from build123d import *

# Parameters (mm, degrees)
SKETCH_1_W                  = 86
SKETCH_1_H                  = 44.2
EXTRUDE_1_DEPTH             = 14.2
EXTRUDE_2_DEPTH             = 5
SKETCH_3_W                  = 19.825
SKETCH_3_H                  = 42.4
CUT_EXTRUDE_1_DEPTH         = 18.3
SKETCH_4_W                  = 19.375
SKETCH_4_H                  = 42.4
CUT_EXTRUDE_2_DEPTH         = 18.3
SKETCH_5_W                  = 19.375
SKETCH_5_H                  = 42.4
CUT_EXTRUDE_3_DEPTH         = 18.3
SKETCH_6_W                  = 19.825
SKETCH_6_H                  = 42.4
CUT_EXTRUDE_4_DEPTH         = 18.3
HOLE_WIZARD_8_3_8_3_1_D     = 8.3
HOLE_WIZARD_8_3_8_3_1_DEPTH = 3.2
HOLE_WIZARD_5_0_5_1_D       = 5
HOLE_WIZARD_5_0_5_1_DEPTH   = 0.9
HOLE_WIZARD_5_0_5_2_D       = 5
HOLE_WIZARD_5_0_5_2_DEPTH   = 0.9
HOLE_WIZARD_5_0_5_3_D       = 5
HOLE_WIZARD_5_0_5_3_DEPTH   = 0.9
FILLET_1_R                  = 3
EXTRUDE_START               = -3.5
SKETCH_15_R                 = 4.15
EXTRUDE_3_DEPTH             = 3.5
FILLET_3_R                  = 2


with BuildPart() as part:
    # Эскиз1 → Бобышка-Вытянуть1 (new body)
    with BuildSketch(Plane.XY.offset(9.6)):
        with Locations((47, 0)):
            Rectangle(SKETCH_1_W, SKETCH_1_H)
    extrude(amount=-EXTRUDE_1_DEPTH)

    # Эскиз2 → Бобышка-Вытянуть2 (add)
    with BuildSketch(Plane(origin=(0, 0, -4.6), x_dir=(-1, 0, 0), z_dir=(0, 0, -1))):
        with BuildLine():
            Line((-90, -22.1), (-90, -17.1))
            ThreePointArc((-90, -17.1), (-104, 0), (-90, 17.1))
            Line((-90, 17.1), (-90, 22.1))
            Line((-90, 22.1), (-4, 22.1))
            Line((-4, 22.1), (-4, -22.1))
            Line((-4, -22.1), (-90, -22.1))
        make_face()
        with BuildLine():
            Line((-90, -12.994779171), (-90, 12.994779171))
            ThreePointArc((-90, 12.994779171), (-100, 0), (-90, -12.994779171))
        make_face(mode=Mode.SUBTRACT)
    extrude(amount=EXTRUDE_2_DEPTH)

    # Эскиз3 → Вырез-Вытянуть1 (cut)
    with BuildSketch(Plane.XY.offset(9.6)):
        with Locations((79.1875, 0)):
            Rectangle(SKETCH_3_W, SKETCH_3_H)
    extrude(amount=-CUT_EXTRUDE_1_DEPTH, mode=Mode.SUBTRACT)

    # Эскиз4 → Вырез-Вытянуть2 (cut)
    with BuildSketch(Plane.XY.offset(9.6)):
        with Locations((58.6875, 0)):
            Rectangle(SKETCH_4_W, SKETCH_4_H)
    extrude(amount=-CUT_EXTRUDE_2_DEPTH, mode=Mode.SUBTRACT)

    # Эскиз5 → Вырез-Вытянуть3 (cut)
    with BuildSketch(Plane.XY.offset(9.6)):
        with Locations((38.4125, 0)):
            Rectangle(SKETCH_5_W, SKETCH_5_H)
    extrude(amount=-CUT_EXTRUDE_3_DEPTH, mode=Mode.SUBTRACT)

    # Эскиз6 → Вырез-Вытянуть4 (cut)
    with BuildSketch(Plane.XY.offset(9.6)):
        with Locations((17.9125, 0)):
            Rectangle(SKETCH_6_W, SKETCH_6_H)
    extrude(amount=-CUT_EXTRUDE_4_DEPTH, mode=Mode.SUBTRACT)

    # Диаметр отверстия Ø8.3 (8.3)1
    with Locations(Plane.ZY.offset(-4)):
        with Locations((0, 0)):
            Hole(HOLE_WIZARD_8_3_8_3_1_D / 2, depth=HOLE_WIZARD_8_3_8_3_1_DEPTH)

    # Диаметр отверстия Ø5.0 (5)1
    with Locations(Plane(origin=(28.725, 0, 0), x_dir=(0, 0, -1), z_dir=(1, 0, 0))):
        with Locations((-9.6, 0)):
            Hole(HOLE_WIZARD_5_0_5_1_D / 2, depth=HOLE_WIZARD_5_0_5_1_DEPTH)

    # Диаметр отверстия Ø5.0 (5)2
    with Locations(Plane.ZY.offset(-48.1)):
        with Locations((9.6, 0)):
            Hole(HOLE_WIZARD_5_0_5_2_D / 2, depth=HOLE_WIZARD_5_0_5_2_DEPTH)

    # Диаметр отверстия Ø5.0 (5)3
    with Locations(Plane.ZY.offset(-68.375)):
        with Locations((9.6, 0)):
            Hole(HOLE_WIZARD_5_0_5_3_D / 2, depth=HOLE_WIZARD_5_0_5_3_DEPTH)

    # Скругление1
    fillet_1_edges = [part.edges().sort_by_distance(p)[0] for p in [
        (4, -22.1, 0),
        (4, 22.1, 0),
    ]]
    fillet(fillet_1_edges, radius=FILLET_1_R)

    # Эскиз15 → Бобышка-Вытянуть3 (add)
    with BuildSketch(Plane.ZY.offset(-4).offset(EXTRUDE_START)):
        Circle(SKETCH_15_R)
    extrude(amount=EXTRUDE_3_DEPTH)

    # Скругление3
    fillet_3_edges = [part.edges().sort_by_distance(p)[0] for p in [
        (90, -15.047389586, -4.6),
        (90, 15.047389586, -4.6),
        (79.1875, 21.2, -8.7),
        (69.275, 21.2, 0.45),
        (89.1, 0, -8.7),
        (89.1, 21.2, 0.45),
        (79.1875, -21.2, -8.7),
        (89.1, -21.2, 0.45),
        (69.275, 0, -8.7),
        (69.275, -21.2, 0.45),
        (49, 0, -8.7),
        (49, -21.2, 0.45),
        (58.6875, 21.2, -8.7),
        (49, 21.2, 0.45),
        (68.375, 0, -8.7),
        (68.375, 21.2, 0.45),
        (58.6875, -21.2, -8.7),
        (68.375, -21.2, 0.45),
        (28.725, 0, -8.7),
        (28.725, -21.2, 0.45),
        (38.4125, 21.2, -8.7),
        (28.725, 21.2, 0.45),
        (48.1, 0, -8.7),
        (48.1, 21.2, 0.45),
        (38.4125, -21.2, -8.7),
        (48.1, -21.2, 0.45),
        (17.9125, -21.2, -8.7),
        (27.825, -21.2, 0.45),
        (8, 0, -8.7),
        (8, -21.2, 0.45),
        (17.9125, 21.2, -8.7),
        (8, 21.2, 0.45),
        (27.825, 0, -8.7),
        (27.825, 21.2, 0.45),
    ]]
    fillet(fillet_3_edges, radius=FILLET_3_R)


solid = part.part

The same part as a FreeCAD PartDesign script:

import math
import FreeCAD as App
import Part
import Sketcher

V = App.Vector
Q = App.Units.Quantity


def edges_at(feature, points):
    """Names of the edges that pass closest to the given points."""
    edges = feature.Shape.Edges
    near = lambda p: min(range(len(edges)), key=lambda i: edges[i].distToShape(Part.Vertex(*p))[0])
    return sorted({f"Edge{near(p) + 1}" for p in points})


def add_polygon(sketch, points):
    """Adds a closed chain of lines whose ends are joined by coincident constraints."""
    first, n = sketch.GeometryCount, len(points)
    for a, b in zip(points, points[1:] + points[:1]):
        sketch.addGeometry(Part.LineSegment(App.Vector(*a, 0), App.Vector(*b, 0)), False)
    for i in range(n):
        sketch.addConstraint(Sketcher.Constraint("Coincident", first + i, 2, first + (i + 1) % n, 1))

doc = App.newDocument("Part")
params = doc.addObject("Spreadsheet::Sheet", "Params")
for row, (alias, value) in enumerate([
    ("sketch1_width", "86 mm"),
    ("sketch1_height", "44.2 mm"),
    ("pad1_length", "14.2 mm"),
    ("sketch2_width", "86 mm"),
    ("sketch2_height", "5 mm"),
    ("sketch2_height2", "44.2 mm"),
    ("pad2_length", "5 mm"),
    ("sketch3_height", "42.4 mm"),
    ("pocket1_length", "18.3 mm"),
    ("sketch4_height", "42.4 mm"),
    ("pocket2_length", "18.3 mm"),
    ("sketch5_height", "42.4 mm"),
    ("pocket3_length", "18.3 mm"),
    ("sketch6_height", "42.4 mm"),
    ("pocket4_length", "18.3 mm"),
    ("sketch7_diameter", "8.3 mm"),
    ("hole_diameter", "8.3 mm"),
    ("hole_depth", "3.2 mm"),
    ("sketch8_diameter", "5 mm"),
    ("hole2_diameter", "5 mm"),
    ("hole2_depth", "0.9 mm"),
    ("sketch9_diameter", "5 mm"),
    ("hole3_diameter", "5 mm"),
    ("hole3_depth", "0.9 mm"),
    ("sketch10_diameter", "5 mm"),
    ("hole4_diameter", "5 mm"),
    ("hole4_depth", "0.9 mm"),
    ("fillet_radius", "3 mm"),
    ("sketch11_diameter", "8.3 mm"),
    ("pad3_length", "3.5 mm"),
    ("fillet2_radius", "2 mm"),
], start=1):
    params.set(f"A{row}", alias)
    params.set(f"B{row}", "=" + value)
    params.setAlias(f"B{row}", alias)

body = doc.addObject("PartDesign::Body", "Body")

# Sketch on XY plane
sketch1 = body.newObject("Sketcher::SketchObject", "Sketch")
sketch1.AttachmentSupport = (doc.getObject("XY_Plane"), [""])
sketch1.MapMode = "FlatFace"
sketch1.AttachmentOffset = App.Placement(V(0, 0, 9.6), App.Rotation())
add_polygon(sketch1, [(4, 22), (4, -22), (90, -22), (90, 22)])  # lines 0-3
sketch1.addConstraint([
    Sketcher.Constraint("Vertical", 0),
    Sketcher.Constraint("Horizontal", 1),
    Sketcher.Constraint("Vertical", 2),
    Sketcher.Constraint("Horizontal", 3),
    Sketcher.Constraint("DistanceX", 1, 1, 1, 2, Q("86 mm")),
    Sketcher.Constraint("DistanceY", 0, 2, 0, 1, Q("44.2 mm")),
    Sketcher.Constraint("DistanceX", -1, 1, 0, 2, Q("4 mm")),
    Sketcher.Constraint("DistanceY", 0, 2, -1, 1, Q("22.1 mm")),
])
sketch1.setExpression("Constraints[8]", "Params.sketch1_width")
sketch1.setExpression("Constraints[9]", "Params.sketch1_height")
pad1 = body.newObject("PartDesign::Pad", "Pad")
pad1.Profile = sketch1
pad1.setExpression("Length", "Params.pad1_length")
pad1.Reversed = True

# Sketch on XY plane
sketch2 = body.newObject("Sketcher::SketchObject", "Sketch001")
sketch2.AttachmentSupport = (doc.getObject("XY_Plane"), [""])
sketch2.MapMode = "FlatFace"
sketch2.AttachmentOffset = App.Placement(V(0, 0, -4.6), App.Rotation())
sketch2.addGeometry([
    Part.LineSegment(V(90, -17, 0), V(90, -22, 0)),  # 0
    Part.LineSegment(V(90, -22, 0), V(4, -22, 0)),  # 1
    Part.LineSegment(V(4, -22, 0), V(4, 22, 0)),  # 2
    Part.LineSegment(V(4, 22, 0), V(90, 22, 0)),  # 3
    Part.LineSegment(V(90, 22, 0), V(90, 17, 0)),  # 4
    Part.ArcOfCircle(Part.Circle(V(87, 0, 0), V(0, 0, 1), 17), math.radians(-79), math.radians(79)),  # 5
    Part.ArcOfCircle(Part.Circle(V(87, 0, 0), V(0, 0, 1), 13), math.radians(-75), math.radians(75)),  # 6
    Part.LineSegment(V(90, 13, 0), V(90, -13, 0)),  # 7
], False)
sketch2.addConstraint([
    Sketcher.Constraint("Coincident", 0, 2, 1, 1),
    Sketcher.Constraint("Coincident", 1, 2, 2, 1),
    Sketcher.Constraint("Coincident", 2, 2, 3, 1),
    Sketcher.Constraint("Coincident", 3, 2, 4, 1),
    Sketcher.Constraint("Coincident", 4, 2, 5, 2),
    Sketcher.Constraint("Coincident", 5, 1, 0, 1),
    Sketcher.Constraint("Coincident", 6, 1, 7, 2),
    Sketcher.Constraint("Coincident", 7, 1, 6, 2),
    Sketcher.Constraint("Vertical", 0),
    Sketcher.Constraint("Horizontal", 1),
    Sketcher.Constraint("Vertical", 2),
    Sketcher.Constraint("Horizontal", 3),
    Sketcher.Constraint("Vertical", 4),
    Sketcher.Constraint("Vertical", 7),
    Sketcher.Constraint("Coincident", 6, 3, 5, 3),
    Sketcher.Constraint("Symmetric", 0, 2, 3, 2, -1),
    Sketcher.Constraint("PointOnObject", 5, 3, -1),
    Sketcher.Constraint("Vertical", 5, 1, 6, 1),
    Sketcher.Constraint("DistanceX", 1, 2, 1, 1, Q("86 mm")),
    Sketcher.Constraint("DistanceY", 0, 2, 0, 1, Q("5 mm")),
    Sketcher.Constraint("DistanceY", 2, 1, 2, 2, Q("44.2 mm")),
    Sketcher.Constraint("DistanceX", -1, 1, 0, 2, Q("90 mm")),
    Sketcher.Constraint("Radius", 5, Q("17.443214 mm")),
    Sketcher.Constraint("Radius", 6, Q("13.443214 mm")),
])
sketch2.setExpression("Constraints[18]", "Params.sketch2_width")
sketch2.setExpression("Constraints[19]", "Params.sketch2_height")
sketch2.setExpression("Constraints[20]", "Params.sketch2_height2")
pad2 = body.newObject("PartDesign::Pad", "Pad001")
pad2.Profile = sketch2
pad2.setExpression("Length", "Params.pad2_length")
pad2.Reversed = True

# Sketch on XY plane
sketch3 = body.newObject("Sketcher::SketchObject", "Sketch002")
sketch3.AttachmentSupport = (doc.getObject("XY_Plane"), [""])
sketch3.MapMode = "FlatFace"
sketch3.AttachmentOffset = App.Placement(V(0, 0, 9.6), App.Rotation())
add_polygon(sketch3, [(69, 21), (69, -21), (89, -21), (89, 21)])  # lines 0-3
sketch3.addConstraint([
    Sketcher.Constraint("Vertical", 0),
    Sketcher.Constraint("Horizontal", 1),
    Sketcher.Constraint("Vertical", 2),
    Sketcher.Constraint("Horizontal", 3),
    Sketcher.Constraint("DistanceY", 0, 2, 0, 1, Q("42.4 mm")),
    Sketcher.Constraint("DistanceY", 0, 2, -1, 1, Q("21.2 mm")),
    Sketcher.Constraint("DistanceX", -1, 1, 1, 2, Q("89.1 mm")),
    Sketcher.Constraint("DistanceX", 1, 1, 1, 2, Q("19.825 mm")),
])
sketch3.setExpression("Constraints[8]", "Params.sketch3_height")
pocket1 = body.newObject("PartDesign::Pocket", "Pocket")
pocket1.Profile = sketch3
pocket1.setExpression("Length", "Params.pocket1_length")

# Sketch on XY plane
sketch4 = body.newObject("Sketcher::SketchObject", "Sketch003")
sketch4.AttachmentSupport = (doc.getObject("XY_Plane"), [""])
sketch4.MapMode = "FlatFace"
sketch4.AttachmentOffset = App.Placement(V(0, 0, 9.6), App.Rotation())
add_polygon(sketch4, [(49, 21), (49, -21), (68, -21), (68, 21)])  # lines 0-3
sketch4.addConstraint([
    Sketcher.Constraint("Vertical", 0),
    Sketcher.Constraint("Horizontal", 1),
    Sketcher.Constraint("Vertical", 2),
    Sketcher.Constraint("Horizontal", 3),
    Sketcher.Constraint("DistanceY", 0, 2, 0, 1, Q("42.4 mm")),
    Sketcher.Constraint("DistanceX", -1, 1, 0, 2, Q("49 mm")),
    Sketcher.Constraint("DistanceY", 0, 2, -1, 1, Q("21.2 mm")),
    Sketcher.Constraint("DistanceX", 1, 1, 1, 2, Q("19.375 mm")),
])
sketch4.setExpression("Constraints[8]", "Params.sketch4_height")
pocket2 = body.newObject("PartDesign::Pocket", "Pocket001")
pocket2.Profile = sketch4
pocket2.setExpression("Length", "Params.pocket2_length")

# Sketch on XY plane
sketch5 = body.newObject("Sketcher::SketchObject", "Sketch004")
sketch5.AttachmentSupport = (doc.getObject("XY_Plane"), [""])
sketch5.MapMode = "FlatFace"
sketch5.AttachmentOffset = App.Placement(V(0, 0, 9.6), App.Rotation())
add_polygon(sketch5, [(29, 21), (29, -21), (48, -21), (48, 21)])  # lines 0-3
sketch5.addConstraint([
    Sketcher.Constraint("Vertical", 0),
    Sketcher.Constraint("Horizontal", 1),
    Sketcher.Constraint("Vertical", 2),
    Sketcher.Constraint("Horizontal", 3),
    Sketcher.Constraint("DistanceY", 0, 2, 0, 1, Q("42.4 mm")),
    Sketcher.Constraint("DistanceY", 0, 2, -1, 1, Q("21.2 mm")),
    Sketcher.Constraint("DistanceX", -1, 1, 1, 2, Q("48.1 mm")),
    Sketcher.Constraint("DistanceX", 1, 1, 1, 2, Q("19.375 mm")),
])
sketch5.setExpression("Constraints[8]", "Params.sketch5_height")
pocket3 = body.newObject("PartDesign::Pocket", "Pocket002")
pocket3.Profile = sketch5
pocket3.setExpression("Length", "Params.pocket3_length")

# Sketch on XY plane
sketch6 = body.newObject("Sketcher::SketchObject", "Sketch005")
sketch6.AttachmentSupport = (doc.getObject("XY_Plane"), [""])
sketch6.MapMode = "FlatFace"
sketch6.AttachmentOffset = App.Placement(V(0, 0, 9.6), App.Rotation())
add_polygon(sketch6, [(8, 21), (8, -21), (28, -21), (28, 21)])  # lines 0-3
sketch6.addConstraint([
    Sketcher.Constraint("Vertical", 0),
    Sketcher.Constraint("Horizontal", 1),
    Sketcher.Constraint("Vertical", 2),
    Sketcher.Constraint("Horizontal", 3),
    Sketcher.Constraint("DistanceY", 0, 2, 0, 1, Q("42.4 mm")),
    Sketcher.Constraint("DistanceX", -1, 1, 0, 2, Q("8 mm")),
    Sketcher.Constraint("DistanceY", 0, 2, -1, 1, Q("21.2 mm")),
    Sketcher.Constraint("DistanceX", 1, 1, 1, 2, Q("19.825 mm")),
])
sketch6.setExpression("Constraints[8]", "Params.sketch6_height")
pocket4 = body.newObject("PartDesign::Pocket", "Pocket003")
pocket4.Profile = sketch6
pocket4.setExpression("Length", "Params.pocket4_length")

# Sketch on YZ plane
sketch7 = body.newObject("Sketcher::SketchObject", "Sketch006")
sketch7.AttachmentSupport = (doc.getObject("YZ_Plane"), [""])
sketch7.MapMode = "FlatFace"
sketch7.AttachmentOffset = App.Placement(V(0, 0, 4), App.Rotation())
sketch7.addGeometry(Part.Circle(V(0, 0, 0), V(0, 0, 1), 4.2), False)
sketch7.addConstraint([
    Sketcher.Constraint("Coincident", 0, 3, -1, 1),
    Sketcher.Constraint("Diameter", 0, Q("8.3 mm")),
])
sketch7.setExpression("Constraints[1]", "Params.sketch7_diameter")
doc.recompute()
hole = body.newObject("PartDesign::Hole", "Hole")
hole.Profile = sketch7
hole.ThreadType = "None"
hole.setExpression("Diameter", "Params.hole_diameter")
hole.DepthType = "Dimension"
hole.setExpression("Depth", "Params.hole_depth")
hole.DrillPoint = "Flat"
hole.Reversed = True

# Sketch on YZ plane
sketch8 = body.newObject("Sketcher::SketchObject", "Sketch007")
sketch8.AttachmentSupport = (doc.getObject("YZ_Plane"), [""])
sketch8.MapMode = "FlatFace"
sketch8.AttachmentOffset = App.Placement(V(0, 0, 28.725), App.Rotation())
sketch8.addGeometry(Part.Circle(V(0, 9.6, 0), V(0, 0, 1), 2.5), False)
sketch8.addConstraint([
    Sketcher.Constraint("PointOnObject", 0, 3, -2),
    Sketcher.Constraint("Diameter", 0, Q("5 mm")),
    Sketcher.Constraint("DistanceY", -1, 1, 0, 3, Q("9.6 mm")),
])
sketch8.setExpression("Constraints[1]", "Params.sketch8_diameter")
doc.recompute()
hole2 = body.newObject("PartDesign::Hole", "Hole001")
hole2.Profile = sketch8
hole2.ThreadType = "None"
hole2.setExpression("Diameter", "Params.hole2_diameter")
hole2.DepthType = "Dimension"
hole2.setExpression("Depth", "Params.hole2_depth")
hole2.DrillPoint = "Flat"

# Sketch on YZ plane
sketch9 = body.newObject("Sketcher::SketchObject", "Sketch008")
sketch9.AttachmentSupport = (doc.getObject("YZ_Plane"), [""])
sketch9.MapMode = "FlatFace"
sketch9.AttachmentOffset = App.Placement(V(0, 0, 48.1), App.Rotation())
sketch9.addGeometry(Part.Circle(V(0, 9.6, 0), V(0, 0, 1), 2.5), False)
sketch9.addConstraint([
    Sketcher.Constraint("PointOnObject", 0, 3, -2),
    Sketcher.Constraint("Diameter", 0, Q("5 mm")),
    Sketcher.Constraint("DistanceY", -1, 1, 0, 3, Q("9.6 mm")),
])
sketch9.setExpression("Constraints[1]", "Params.sketch9_diameter")
doc.recompute()
hole3 = body.newObject("PartDesign::Hole", "Hole002")
hole3.Profile = sketch9
hole3.ThreadType = "None"
hole3.setExpression("Diameter", "Params.hole3_diameter")
hole3.DepthType = "Dimension"
hole3.setExpression("Depth", "Params.hole3_depth")
hole3.DrillPoint = "Flat"
hole3.Reversed = True

# Sketch on YZ plane
sketch10 = body.newObject("Sketcher::SketchObject", "Sketch009")
sketch10.AttachmentSupport = (doc.getObject("YZ_Plane"), [""])
sketch10.MapMode = "FlatFace"
sketch10.AttachmentOffset = App.Placement(V(0, 0, 68.375), App.Rotation())
sketch10.addGeometry(Part.Circle(V(0, 9.6, 0), V(0, 0, 1), 2.5), False)
sketch10.addConstraint([
    Sketcher.Constraint("PointOnObject", 0, 3, -2),
    Sketcher.Constraint("Diameter", 0, Q("5 mm")),
    Sketcher.Constraint("DistanceY", -1, 1, 0, 3, Q("9.6 mm")),
])
sketch10.setExpression("Constraints[1]", "Params.sketch10_diameter")
doc.recompute()
hole4 = body.newObject("PartDesign::Hole", "Hole003")
hole4.Profile = sketch10
hole4.ThreadType = "None"
hole4.setExpression("Diameter", "Params.hole4_diameter")
hole4.DepthType = "Dimension"
hole4.setExpression("Depth", "Params.hole4_depth")
hole4.DrillPoint = "Flat"
hole4.Reversed = True
doc.recompute()

fillet = body.newObject("PartDesign::Fillet", "Fillet")
fillet.Base = (hole4, edges_at(hole4, [(4, -22.1, 0), (4, 22.1, 0)]))
fillet.setExpression("Radius", "Params.fillet_radius")

# Sketch on YZ plane
sketch11 = body.newObject("Sketcher::SketchObject", "Sketch010")
sketch11.AttachmentSupport = (doc.getObject("YZ_Plane"), [""])
sketch11.MapMode = "FlatFace"
sketch11.AttachmentOffset = App.Placement(V(0, 0, 7.5), App.Rotation())
sketch11.addGeometry(Part.Circle(V(0, 0, 0), V(0, 0, 1), 4.2), False)
sketch11.addConstraint([
    Sketcher.Constraint("Coincident", 0, 3, -1, 1),
    Sketcher.Constraint("Diameter", 0, Q("8.3 mm")),
])
sketch11.setExpression("Constraints[1]", "Params.sketch11_diameter")
pad3 = body.newObject("PartDesign::Pad", "Pad002")
pad3.Profile = sketch11
pad3.setExpression("Length", "Params.pad3_length")
pad3.Reversed = True
doc.recompute()

fillet2 = body.newObject("PartDesign::Fillet", "Fillet001")
fillet2.Base = (pad3, edges_at(pad3, [
    (90, -15.047, -4.6),
    (90, 15.047, -4.6),
    (79.188, 21.2, -8.7),
    (69.275, 21.2, 0.45),
    (89.1, 0, -8.7),
    (89.1, 21.2, 0.45),
    (79.188, -21.2, -8.7),
    (89.1, -21.2, 0.45),
    (69.275, 0, -8.7),
    (69.275, -21.2, 0.45),
    (49, 0, -8.7),
    (49, -21.2, 0.45),
    (58.688, 21.2, -8.7),
    (49, 21.2, 0.45),
    (68.375, 0, -8.7),
    (68.375, 21.2, 0.45),
    (58.688, -21.2, -8.7),
    (68.375, -21.2, 0.45),
    (28.725, 0, -8.7),
    (28.725, -21.2, 0.45),
    (38.413, 21.2, -8.7),
    (28.725, 21.2, 0.45),
    (48.1, 0, -8.7),
    (48.1, 21.2, 0.45),
    (38.413, -21.2, -8.7),
    (48.1, -21.2, 0.45),
    (17.913, -21.2, -8.7),
    (27.825, -21.2, 0.45),
    (8, 0, -8.7),
    (8, -21.2, 0.45),
    (17.913, 21.2, -8.7),
    (8, 21.2, 0.45),
    (27.825, 0, -8.7),
    (27.825, 21.2, 0.45),
]))
fillet2.setExpression("Radius", "Params.fillet2_radius")

doc.recompute()
